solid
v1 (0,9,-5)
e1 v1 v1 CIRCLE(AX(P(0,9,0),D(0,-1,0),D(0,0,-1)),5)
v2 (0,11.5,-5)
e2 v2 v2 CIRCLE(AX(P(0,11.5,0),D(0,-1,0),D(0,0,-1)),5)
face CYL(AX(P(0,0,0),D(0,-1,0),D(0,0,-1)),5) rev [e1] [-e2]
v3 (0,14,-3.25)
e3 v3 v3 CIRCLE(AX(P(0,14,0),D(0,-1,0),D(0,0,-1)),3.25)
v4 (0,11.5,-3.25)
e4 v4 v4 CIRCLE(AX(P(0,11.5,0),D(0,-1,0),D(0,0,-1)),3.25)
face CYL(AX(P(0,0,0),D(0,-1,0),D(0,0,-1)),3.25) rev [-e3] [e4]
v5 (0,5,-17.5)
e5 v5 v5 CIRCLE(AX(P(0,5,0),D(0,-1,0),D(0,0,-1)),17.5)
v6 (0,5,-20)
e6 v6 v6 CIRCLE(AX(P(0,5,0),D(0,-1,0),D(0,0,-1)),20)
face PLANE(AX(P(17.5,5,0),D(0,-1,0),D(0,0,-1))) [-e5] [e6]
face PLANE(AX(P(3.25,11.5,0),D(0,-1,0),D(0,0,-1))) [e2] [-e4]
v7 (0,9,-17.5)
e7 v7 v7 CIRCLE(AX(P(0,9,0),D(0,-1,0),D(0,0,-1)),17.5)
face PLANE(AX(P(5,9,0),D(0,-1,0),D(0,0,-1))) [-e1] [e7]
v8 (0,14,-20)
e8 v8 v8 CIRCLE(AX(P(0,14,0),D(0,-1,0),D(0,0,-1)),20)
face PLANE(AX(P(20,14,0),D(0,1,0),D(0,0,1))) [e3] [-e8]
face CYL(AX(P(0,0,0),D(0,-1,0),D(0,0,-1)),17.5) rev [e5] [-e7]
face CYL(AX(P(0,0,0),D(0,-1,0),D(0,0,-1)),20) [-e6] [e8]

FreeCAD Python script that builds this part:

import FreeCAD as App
import Part
import Sketcher
from FreeCAD import Vector
Q = App.Units.Quantity


def add_polygon(sketch, points):
    """Adds a closed chain of lines whose ends are joined by coincident constraints."""
    first, n = sketch.GeometryCount, len(points)
    for a, b in zip(points, points[1:] + points[:1]):
        sketch.addGeometry(Part.LineSegment(App.Vector(*a, 0), App.Vector(*b, 0)), False)
    for i in range(n):
        sketch.addConstraint(Sketcher.Constraint("Coincident", first + i, 2, first + (i + 1) % n, 1))

doc = App.newDocument("Part")
body = doc.addObject("PartDesign::Body", "Body")

sketch1 = body.newObject("Sketcher::SketchObject", "Sketch")
sketch1.AttachmentSupport = (doc.getObject("XY_Plane"), [""])
sketch1.MapMode = "FlatFace"
add_polygon(sketch1, [(3.2, 14), (3.2, 11.5), (5, 11.5), (5, 9), (17.5, 9), (17.5, 5), (20, 5), (20, 14)])
sketch1.addConstraint([
    Sketcher.Constraint("Vertical", 0),
    Sketcher.Constraint("Horizontal", 1),
    Sketcher.Constraint("Vertical", 2),
    Sketcher.Constraint("Horizontal", 3),
    Sketcher.Constraint("Vertical", 4),
    Sketcher.Constraint("Horizontal", 5),
    Sketcher.Constraint("Vertical", 6),
    Sketcher.Constraint("Horizontal", 7),
    Sketcher.Constraint("Equal", 5, 0),
    Sketcher.Constraint("Equal", 0, 2),
    Sketcher.Constraint("DistanceY", 4, 2, 4, 1, Q("4 mm")),
    Sketcher.Constraint("DistanceY", 6, 1, 6, 2, Q("9 mm")),
    Sketcher.Constraint("DistanceX", 3, 1, 3, 2, Q("12.5 mm")),
    Sketcher.Constraint("DistanceX", -1, 1, 1, 2, Q("5 mm")),
    Sketcher.Constraint("DistanceY", -1, 1, 2, 2, Q("9 mm")),
    Sketcher.Constraint("DistanceX", 1, 1, 1, 2, Q("1.75 mm")),
])
revolution = body.newObject("PartDesign::Revolution", "Revolution")
revolution.Profile = sketch1
revolution.ReferenceAxis = (sketch1, ["V_Axis"])
revolution.Angle = 360

doc.recompute()
